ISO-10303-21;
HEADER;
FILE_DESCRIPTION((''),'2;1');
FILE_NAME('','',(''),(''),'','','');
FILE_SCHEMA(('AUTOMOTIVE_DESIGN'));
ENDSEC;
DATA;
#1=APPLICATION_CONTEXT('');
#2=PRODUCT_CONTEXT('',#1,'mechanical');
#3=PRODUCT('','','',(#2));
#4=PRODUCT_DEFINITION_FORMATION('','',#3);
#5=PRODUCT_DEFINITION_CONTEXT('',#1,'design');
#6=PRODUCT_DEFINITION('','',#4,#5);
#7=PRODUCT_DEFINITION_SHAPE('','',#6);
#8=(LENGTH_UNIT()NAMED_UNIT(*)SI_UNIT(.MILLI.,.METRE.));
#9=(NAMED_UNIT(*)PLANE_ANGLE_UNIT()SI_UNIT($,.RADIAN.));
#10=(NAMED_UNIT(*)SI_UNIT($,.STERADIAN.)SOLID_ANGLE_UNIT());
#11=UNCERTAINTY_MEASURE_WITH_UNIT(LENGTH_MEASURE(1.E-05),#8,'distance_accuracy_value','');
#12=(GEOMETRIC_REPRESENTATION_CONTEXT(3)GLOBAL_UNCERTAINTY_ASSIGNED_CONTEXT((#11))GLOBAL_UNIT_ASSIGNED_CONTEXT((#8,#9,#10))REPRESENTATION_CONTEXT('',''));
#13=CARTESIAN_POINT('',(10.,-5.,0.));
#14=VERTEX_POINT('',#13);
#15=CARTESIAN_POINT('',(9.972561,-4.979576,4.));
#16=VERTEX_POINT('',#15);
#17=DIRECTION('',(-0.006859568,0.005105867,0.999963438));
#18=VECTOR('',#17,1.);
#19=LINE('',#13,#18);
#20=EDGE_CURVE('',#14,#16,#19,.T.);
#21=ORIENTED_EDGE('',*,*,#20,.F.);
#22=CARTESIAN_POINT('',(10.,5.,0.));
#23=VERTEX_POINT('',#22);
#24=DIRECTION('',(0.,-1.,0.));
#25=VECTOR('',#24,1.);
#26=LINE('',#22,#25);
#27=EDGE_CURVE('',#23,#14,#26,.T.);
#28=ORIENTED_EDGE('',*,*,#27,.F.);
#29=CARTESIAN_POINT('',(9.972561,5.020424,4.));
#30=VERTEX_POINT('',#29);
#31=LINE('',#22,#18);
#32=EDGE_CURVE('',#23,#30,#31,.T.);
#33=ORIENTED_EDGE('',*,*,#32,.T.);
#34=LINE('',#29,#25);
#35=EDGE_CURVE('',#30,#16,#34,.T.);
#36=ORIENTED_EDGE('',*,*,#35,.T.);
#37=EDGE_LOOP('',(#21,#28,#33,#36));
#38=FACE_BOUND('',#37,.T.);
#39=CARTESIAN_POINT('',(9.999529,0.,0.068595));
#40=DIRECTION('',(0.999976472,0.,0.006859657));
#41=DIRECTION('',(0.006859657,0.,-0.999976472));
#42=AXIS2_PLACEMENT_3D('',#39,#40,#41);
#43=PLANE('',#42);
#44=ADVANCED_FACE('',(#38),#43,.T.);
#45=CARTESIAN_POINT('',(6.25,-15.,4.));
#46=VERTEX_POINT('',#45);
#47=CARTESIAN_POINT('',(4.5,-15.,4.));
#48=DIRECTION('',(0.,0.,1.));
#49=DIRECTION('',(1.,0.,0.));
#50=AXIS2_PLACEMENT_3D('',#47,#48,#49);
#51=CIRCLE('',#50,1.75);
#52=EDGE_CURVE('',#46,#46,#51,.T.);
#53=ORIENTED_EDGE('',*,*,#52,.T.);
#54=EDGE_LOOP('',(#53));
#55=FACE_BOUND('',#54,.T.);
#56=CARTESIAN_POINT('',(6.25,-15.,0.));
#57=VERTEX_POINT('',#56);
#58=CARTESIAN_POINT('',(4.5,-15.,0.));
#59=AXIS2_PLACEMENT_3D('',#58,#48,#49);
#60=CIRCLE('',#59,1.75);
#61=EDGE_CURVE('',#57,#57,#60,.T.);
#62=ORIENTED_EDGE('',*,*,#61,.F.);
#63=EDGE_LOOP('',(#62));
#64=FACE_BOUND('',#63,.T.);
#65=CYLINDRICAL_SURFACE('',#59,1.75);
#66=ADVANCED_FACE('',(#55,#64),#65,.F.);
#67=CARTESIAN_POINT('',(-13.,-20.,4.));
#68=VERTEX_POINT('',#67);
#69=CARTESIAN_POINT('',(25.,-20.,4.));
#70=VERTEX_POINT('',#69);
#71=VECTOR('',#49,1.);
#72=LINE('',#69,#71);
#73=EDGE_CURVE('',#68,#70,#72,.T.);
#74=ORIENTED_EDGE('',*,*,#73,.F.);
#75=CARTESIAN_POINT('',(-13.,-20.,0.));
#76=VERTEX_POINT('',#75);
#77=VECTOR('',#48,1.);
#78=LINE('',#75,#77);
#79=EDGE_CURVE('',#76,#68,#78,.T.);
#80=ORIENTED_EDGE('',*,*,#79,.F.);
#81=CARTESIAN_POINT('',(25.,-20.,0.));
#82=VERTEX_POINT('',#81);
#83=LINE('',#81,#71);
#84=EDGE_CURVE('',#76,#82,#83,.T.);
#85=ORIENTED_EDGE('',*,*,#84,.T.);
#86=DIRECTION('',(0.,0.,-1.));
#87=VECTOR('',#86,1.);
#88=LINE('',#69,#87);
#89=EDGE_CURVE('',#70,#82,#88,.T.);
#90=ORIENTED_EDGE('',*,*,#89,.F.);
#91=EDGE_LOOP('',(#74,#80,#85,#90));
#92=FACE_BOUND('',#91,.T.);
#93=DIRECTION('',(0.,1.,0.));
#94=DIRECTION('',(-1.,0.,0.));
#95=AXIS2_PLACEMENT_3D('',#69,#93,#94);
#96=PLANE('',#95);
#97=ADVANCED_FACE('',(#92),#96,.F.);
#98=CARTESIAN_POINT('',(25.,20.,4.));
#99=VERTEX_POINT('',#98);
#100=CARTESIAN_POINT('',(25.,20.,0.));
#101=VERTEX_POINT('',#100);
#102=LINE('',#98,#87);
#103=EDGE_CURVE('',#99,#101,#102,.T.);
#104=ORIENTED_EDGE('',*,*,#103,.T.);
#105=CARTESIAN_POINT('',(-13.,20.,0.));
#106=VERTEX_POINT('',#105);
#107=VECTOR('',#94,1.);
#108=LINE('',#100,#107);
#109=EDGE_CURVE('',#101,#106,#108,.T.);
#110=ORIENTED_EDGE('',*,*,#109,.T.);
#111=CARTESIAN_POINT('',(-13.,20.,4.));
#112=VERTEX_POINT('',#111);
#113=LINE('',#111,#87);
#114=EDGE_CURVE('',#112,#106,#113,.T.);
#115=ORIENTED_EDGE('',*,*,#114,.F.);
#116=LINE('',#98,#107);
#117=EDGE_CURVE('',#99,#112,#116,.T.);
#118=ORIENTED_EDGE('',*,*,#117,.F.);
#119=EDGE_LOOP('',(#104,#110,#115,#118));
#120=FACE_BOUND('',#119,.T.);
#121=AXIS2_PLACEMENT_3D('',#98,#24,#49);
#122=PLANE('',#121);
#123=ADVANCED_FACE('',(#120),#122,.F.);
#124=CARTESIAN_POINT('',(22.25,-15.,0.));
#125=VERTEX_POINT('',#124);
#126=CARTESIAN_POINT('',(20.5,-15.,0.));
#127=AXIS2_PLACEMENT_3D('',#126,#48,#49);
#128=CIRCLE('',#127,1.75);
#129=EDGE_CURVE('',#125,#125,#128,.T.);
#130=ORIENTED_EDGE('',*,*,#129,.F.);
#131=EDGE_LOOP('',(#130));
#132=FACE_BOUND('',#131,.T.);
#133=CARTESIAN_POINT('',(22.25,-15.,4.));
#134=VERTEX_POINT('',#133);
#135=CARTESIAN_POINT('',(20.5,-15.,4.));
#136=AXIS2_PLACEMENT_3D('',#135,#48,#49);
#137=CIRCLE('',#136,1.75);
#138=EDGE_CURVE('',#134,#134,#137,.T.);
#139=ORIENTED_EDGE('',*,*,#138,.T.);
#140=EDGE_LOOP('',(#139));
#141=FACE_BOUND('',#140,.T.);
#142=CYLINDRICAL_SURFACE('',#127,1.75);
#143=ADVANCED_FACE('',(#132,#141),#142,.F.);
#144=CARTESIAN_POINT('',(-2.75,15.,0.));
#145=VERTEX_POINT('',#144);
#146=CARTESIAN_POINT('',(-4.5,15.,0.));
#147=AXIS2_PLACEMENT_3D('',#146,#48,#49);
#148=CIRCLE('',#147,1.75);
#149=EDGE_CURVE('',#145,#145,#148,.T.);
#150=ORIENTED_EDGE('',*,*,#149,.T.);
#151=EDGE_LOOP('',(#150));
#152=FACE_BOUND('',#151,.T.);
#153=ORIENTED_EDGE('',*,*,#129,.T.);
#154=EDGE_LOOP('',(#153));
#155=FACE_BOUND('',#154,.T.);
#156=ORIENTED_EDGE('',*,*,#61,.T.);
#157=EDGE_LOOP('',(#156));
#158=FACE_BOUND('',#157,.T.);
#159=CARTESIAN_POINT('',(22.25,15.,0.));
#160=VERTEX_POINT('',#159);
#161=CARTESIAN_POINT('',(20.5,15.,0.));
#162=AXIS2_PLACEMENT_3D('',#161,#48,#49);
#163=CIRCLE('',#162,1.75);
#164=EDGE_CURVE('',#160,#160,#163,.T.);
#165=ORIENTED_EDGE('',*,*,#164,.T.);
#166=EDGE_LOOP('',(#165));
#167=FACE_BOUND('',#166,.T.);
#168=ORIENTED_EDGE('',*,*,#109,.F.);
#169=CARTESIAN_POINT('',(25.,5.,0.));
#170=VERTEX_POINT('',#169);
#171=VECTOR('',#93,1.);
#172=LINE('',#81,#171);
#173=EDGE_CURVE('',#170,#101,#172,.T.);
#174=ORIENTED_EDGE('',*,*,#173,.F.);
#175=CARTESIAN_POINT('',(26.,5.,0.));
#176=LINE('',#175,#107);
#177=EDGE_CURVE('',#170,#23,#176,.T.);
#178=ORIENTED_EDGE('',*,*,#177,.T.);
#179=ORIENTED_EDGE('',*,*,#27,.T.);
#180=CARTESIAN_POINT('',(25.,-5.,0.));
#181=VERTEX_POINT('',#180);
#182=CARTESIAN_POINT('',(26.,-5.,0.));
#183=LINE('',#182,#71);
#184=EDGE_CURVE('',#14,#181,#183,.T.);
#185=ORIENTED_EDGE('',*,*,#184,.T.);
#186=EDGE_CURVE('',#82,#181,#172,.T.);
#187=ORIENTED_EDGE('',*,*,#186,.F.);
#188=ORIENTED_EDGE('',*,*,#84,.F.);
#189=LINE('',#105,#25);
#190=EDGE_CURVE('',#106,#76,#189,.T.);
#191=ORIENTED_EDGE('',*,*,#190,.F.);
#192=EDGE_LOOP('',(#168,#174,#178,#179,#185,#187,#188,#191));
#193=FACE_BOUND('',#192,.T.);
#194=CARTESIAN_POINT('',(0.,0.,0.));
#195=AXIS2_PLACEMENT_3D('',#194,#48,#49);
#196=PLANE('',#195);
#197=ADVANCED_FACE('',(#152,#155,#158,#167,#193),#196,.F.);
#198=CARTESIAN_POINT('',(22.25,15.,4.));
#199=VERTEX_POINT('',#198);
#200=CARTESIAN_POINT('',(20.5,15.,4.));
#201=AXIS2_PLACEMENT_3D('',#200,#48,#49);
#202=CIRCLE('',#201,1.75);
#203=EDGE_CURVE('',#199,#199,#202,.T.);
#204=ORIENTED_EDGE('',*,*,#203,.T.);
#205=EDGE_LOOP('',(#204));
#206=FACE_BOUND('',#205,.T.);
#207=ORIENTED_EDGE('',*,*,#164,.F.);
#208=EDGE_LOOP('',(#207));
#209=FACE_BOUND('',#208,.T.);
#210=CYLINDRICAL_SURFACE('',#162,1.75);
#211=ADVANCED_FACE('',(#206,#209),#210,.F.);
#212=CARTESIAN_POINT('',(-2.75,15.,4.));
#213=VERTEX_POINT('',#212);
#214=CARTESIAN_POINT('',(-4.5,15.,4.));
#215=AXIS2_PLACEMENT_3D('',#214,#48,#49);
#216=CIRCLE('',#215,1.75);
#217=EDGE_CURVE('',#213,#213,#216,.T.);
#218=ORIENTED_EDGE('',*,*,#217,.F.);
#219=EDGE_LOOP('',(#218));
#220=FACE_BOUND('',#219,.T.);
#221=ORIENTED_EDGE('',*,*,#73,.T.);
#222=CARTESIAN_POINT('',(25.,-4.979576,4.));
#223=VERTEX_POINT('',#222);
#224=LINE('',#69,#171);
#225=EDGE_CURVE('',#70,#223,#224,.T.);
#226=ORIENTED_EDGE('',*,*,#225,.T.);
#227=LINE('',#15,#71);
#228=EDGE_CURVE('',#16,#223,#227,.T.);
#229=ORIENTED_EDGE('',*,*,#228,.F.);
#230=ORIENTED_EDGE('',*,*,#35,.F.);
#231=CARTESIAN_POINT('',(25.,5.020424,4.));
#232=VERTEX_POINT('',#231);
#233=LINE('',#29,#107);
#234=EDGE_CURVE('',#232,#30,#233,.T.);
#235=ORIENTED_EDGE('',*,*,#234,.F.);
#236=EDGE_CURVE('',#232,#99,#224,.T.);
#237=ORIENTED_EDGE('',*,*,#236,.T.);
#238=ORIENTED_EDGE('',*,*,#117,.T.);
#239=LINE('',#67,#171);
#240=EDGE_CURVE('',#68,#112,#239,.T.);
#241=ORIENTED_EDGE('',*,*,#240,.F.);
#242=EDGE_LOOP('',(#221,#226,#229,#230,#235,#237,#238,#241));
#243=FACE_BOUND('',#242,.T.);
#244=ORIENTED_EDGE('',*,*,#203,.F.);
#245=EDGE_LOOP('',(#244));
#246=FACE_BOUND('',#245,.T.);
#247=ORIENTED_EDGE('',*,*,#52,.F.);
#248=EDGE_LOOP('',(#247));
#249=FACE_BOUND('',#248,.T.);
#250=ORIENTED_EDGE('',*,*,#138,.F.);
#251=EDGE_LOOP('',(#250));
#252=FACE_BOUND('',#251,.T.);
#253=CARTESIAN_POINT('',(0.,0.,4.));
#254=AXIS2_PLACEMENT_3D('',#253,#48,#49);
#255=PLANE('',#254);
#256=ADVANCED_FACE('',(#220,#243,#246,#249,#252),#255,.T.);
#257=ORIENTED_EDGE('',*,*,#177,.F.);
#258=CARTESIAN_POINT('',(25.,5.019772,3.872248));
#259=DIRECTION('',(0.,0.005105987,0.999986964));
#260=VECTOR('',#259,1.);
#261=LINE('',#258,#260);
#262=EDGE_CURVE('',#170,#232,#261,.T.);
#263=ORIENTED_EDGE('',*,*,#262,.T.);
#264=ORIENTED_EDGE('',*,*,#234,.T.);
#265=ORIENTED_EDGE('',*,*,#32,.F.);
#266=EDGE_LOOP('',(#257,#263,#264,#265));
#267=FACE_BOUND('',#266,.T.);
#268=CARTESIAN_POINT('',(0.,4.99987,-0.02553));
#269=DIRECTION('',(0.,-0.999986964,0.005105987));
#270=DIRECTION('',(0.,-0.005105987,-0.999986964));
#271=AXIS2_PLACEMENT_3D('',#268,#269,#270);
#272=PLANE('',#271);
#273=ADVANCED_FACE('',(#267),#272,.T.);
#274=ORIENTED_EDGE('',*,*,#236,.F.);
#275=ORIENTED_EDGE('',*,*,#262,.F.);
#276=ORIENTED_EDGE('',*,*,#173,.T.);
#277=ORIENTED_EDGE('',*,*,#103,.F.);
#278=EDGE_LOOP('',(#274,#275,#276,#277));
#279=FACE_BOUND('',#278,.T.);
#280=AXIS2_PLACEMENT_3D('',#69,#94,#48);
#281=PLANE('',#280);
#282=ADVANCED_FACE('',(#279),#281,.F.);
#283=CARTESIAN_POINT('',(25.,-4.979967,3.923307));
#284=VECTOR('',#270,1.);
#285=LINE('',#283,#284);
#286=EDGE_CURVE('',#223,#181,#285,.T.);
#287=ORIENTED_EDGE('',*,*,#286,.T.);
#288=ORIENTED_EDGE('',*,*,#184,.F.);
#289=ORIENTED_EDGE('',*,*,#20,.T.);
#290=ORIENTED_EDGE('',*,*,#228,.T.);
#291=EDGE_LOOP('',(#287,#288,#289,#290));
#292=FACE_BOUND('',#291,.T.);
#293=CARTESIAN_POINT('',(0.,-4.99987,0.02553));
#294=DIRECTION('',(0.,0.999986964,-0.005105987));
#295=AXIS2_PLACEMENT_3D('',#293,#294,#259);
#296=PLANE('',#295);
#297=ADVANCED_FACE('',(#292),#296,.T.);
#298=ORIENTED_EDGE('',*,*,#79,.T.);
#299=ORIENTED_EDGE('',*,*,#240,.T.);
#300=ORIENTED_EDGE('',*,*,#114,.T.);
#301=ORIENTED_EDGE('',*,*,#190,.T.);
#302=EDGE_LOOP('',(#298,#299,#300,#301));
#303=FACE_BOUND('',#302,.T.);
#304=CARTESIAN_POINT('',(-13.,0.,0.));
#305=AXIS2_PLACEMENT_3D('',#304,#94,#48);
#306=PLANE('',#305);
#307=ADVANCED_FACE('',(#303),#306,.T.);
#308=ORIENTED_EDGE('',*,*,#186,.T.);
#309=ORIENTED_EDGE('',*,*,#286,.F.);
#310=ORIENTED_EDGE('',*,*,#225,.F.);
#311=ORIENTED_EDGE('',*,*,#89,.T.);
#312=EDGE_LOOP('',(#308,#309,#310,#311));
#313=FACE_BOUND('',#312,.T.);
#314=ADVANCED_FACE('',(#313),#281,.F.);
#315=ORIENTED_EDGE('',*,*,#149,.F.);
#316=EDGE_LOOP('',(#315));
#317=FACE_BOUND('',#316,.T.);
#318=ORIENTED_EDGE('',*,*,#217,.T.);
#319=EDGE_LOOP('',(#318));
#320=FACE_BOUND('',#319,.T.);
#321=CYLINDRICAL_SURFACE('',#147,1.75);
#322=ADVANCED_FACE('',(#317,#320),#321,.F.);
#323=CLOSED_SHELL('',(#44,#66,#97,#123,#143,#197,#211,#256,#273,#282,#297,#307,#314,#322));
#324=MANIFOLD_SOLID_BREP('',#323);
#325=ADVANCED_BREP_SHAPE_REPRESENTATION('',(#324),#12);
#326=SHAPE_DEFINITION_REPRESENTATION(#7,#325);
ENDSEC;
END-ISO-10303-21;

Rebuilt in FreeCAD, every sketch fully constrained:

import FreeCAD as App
import Part
import Sketcher

doc = App.newDocument("Part")
body = doc.addObject("PartDesign::Body", "Body")

# Sketch on XY plane
sketch1 = body.newObject("Sketcher::SketchObject", "Sketch")
sketch1.AttachmentSupport = (doc.getObject("XY_Plane"), [""])
sketch1.MapMode = "FlatFace"
sketch1.addGeometry([
    Part.LineSegment(App.Vector(-25, 20, 0), App.Vector(-25, -20, 0)),
    Part.LineSegment(App.Vector(-25, -20, 0), App.Vector(25, -20, 0)),
    Part.LineSegment(App.Vector(25, -20, 0), App.Vector(25, 20, 0)),
    Part.LineSegment(App.Vector(25, 20, 0), App.Vector(-25, 20, 0)),
], False)
sketch1.addConstraint([
    Sketcher.Constraint("Coincident", 0, 2, 1, 1),
    Sketcher.Constraint("Coincident", 1, 2, 2, 1),
    Sketcher.Constraint("Coincident", 2, 2, 3, 1),
    Sketcher.Constraint("Coincident", 3, 2, 0, 1),
    Sketcher.Constraint("Vertical", 0),
    Sketcher.Constraint("Horizontal", 1),
    Sketcher.Constraint("Vertical", 2),
    Sketcher.Constraint("Horizontal", 3),
    Sketcher.Constraint("Symmetric", 0, 2, 2, 2, -1, 1),
    Sketcher.Constraint("DistanceX", 1, 1, 1, 2, 50.0),
    Sketcher.Constraint("DistanceY", 0, 2, 0, 1, 40.0),
])
pad1 = body.newObject("PartDesign::Pad", "Pad")
pad1.Profile = sketch1
pad1.Length = 4

# Sketch on XY plane
sketch2 = body.newObject("Sketcher::SketchObject", "Sketch001")
sketch2.AttachmentSupport = (doc.getObject("XY_Plane"), [""])
sketch2.MapMode = "FlatFace"
sketch2.AttachmentOffset = App.Placement(App.Vector(0, 0, 4), App.Rotation())
sketch2.addGeometry([
    Part.Circle(App.Vector(-20.5, 15, 0), App.Vector(0, 0, 1), 1.8),  # 0
    Part.Circle(App.Vector(-4.5, 15, 0), App.Vector(0, 0, 1), 1.8),  # 1
    Part.Circle(App.Vector(20.5, 15, 0), App.Vector(0, 0, 1), 1.8),  # 2
    Part.Circle(App.Vector(20.5, -15, 0), App.Vector(0, 0, 1), 1.8),  # 3
    Part.Circle(App.Vector(4.5, -15, 0), App.Vector(0, 0, 1), 1.8),  # 4
    Part.Circle(App.Vector(-20.5, -15, 0), App.Vector(0, 0, 1), 1.8),  # 5
], False)
sketch2.addConstraint([
    Sketcher.Constraint("Equal", 0, 1),
    Sketcher.Constraint("Equal", 1, 2),
    Sketcher.Constraint("Equal", 2, 3),
    Sketcher.Constraint("Equal", 3, 4),
    Sketcher.Constraint("Equal", 4, 5),
    Sketcher.Constraint("Symmetric", 0, 3, 3, 3, -1, 1),
    Sketcher.Constraint("Symmetric", 1, 3, 4, 3, -1, 1),
    Sketcher.Constraint("Symmetric", 2, 3, 5, 3, -1, 1),
    Sketcher.Constraint("Symmetric", 0, 3, 2, 3, -2),
    Sketcher.Constraint("Horizontal", 0, 3, 1, 3),
    Sketcher.Constraint("Diameter", 0, 3.5),
    Sketcher.Constraint("DistanceY", -1, 1, 0, 3, 15.0),
    Sketcher.Constraint("DistanceX", 0, 3, 1, 3, 16.0),
    Sketcher.Constraint("DistanceX", 1, 3, 2, 3, 25.0),
])
pocket1 = body.newObject("PartDesign::Pocket", "Pocket")
pocket1.Profile = sketch2
pocket1.Length = 4

# Sketch on YZ plane
sketch3 = body.newObject("Sketcher::SketchObject", "Sketch002")
sketch3.AttachmentSupport = (doc.getObject("YZ_Plane"), [""])
sketch3.MapMode = "FlatFace"
sketch3.AttachmentOffset = App.Placement(App.Vector(0, 0, -25), App.Rotation())
sketch3.addGeometry([
    Part.LineSegment(App.Vector(20, 0, 0), App.Vector(-20, 0, 0)),
    Part.LineSegment(App.Vector(-20, 0, 0), App.Vector(-20, 4, 0)),
    Part.LineSegment(App.Vector(-20, 4, 0), App.Vector(20, 4, 0)),
    Part.LineSegment(App.Vector(20, 4, 0), App.Vector(20, 0, 0)),
], False)
sketch3.addConstraint([
    Sketcher.Constraint("Coincident", 0, 2, 1, 1),
    Sketcher.Constraint("Coincident", 1, 2, 2, 1),
    Sketcher.Constraint("Coincident", 2, 2, 3, 1),
    Sketcher.Constraint("Coincident", 3, 2, 0, 1),
    Sketcher.Constraint("Horizontal", 0),
    Sketcher.Constraint("Vertical", 1),
    Sketcher.Constraint("Horizontal", 2),
    Sketcher.Constraint("Vertical", 3),
    Sketcher.Constraint("Symmetric", 0, 2, 3, 2, -1, 1),
    Sketcher.Constraint("DistanceX", 0, 2, 0, 1, 40.0),
    Sketcher.Constraint("DistanceY", 1, 1, 1, 2, 4.0),
])
pocket2 = body.newObject("PartDesign::Pocket", "Pocket001")
pocket2.Profile = sketch3
pocket2.Length = 12
pocket2.Reversed = True

# Sketch on XY plane
sketch4 = body.newObject("Sketcher::SketchObject", "Sketch003")
sketch4.AttachmentSupport = (doc.getObject("XY_Plane"), [""])
sketch4.MapMode = "FlatFace"
sketch4.addGeometry([
    Part.LineSegment(App.Vector(10, 5, 0), App.Vector(10, -5, 0)),
    Part.LineSegment(App.Vector(10, -5, 0), App.Vector(26, -5, 0)),
    Part.LineSegment(App.Vector(26, -5, 0), App.Vector(26, 5, 0)),
    Part.LineSegment(App.Vector(26, 5, 0), App.Vector(10, 5, 0)),
], False)
sketch4.addConstraint([
    Sketcher.Constraint("Coincident", 0, 2, 1, 1),
    Sketcher.Constraint("Coincident", 1, 2, 2, 1),
    Sketcher.Constraint("Coincident", 2, 2, 3, 1),
    Sketcher.Constraint("Coincident", 3, 2, 0, 1),
    Sketcher.Constraint("Vertical", 0),
    Sketcher.Constraint("Horizontal", 1),
    Sketcher.Constraint("Vertical", 2),
    Sketcher.Constraint("Horizontal", 3),
    Sketcher.Constraint("DistanceX", 1, 1, 1, 2, 16.0),
    Sketcher.Constraint("DistanceY", 0, 2, 0, 1, 10.0),
    Sketcher.Constraint("DistanceX", -1, 1, 0, 2, 10.0),
    Sketcher.Constraint("DistanceY", 0, 2, -1, 1, 5.0),
])

# Sketch on XY plane
sketch5 = body.newObject("Sketcher::SketchObject", "Sketch004")
sketch5.AttachmentSupport = (doc.getObject("XY_Plane"), [""])
sketch5.MapMode = "FlatFace"
sketch5.AttachmentOffset = App.Placement(App.Vector(0, 0, 4), App.Rotation())
sketch5.addGeometry([
    Part.LineSegment(App.Vector(10, 5, 0), App.Vector(10, -5, 0)),
    Part.LineSegment(App.Vector(10, -5, 0), App.Vector(26, -5, 0)),
    Part.LineSegment(App.Vector(26, -5, 0), App.Vector(26, 5, 0)),
    Part.LineSegment(App.Vector(26, 5, 0), App.Vector(10, 5, 0)),
], False)
sketch5.addConstraint([
    Sketcher.Constraint("Coincident", 0, 2, 1, 1),
    Sketcher.Constraint("Coincident", 1, 2, 2, 1),
    Sketcher.Constraint("Coincident", 2, 2, 3, 1),
    Sketcher.Constraint("Coincident", 3, 2, 0, 1),
    Sketcher.Constraint("Vertical", 0),
    Sketcher.Constraint("Horizontal", 1),
    Sketcher.Constraint("Vertical", 2),
    Sketcher.Constraint("Horizontal", 3),
    Sketcher.Constraint("DistanceX", 1, 1, 1, 2, 16.0),
    Sketcher.Constraint("DistanceY", 0, 2, 0, 1, 10.0),
    Sketcher.Constraint("DistanceX", -1, 1, 0, 2, 9.972561),
    Sketcher.Constraint("DistanceY", 0, 2, -1, 1, 4.979576),
])

subtractiveloft = body.newObject("PartDesign::SubtractiveLoft", "SubtractiveLoft")
subtractiveloft.Profile = sketch4
subtractiveloft.Sections = [sketch5]

doc.recompute()
